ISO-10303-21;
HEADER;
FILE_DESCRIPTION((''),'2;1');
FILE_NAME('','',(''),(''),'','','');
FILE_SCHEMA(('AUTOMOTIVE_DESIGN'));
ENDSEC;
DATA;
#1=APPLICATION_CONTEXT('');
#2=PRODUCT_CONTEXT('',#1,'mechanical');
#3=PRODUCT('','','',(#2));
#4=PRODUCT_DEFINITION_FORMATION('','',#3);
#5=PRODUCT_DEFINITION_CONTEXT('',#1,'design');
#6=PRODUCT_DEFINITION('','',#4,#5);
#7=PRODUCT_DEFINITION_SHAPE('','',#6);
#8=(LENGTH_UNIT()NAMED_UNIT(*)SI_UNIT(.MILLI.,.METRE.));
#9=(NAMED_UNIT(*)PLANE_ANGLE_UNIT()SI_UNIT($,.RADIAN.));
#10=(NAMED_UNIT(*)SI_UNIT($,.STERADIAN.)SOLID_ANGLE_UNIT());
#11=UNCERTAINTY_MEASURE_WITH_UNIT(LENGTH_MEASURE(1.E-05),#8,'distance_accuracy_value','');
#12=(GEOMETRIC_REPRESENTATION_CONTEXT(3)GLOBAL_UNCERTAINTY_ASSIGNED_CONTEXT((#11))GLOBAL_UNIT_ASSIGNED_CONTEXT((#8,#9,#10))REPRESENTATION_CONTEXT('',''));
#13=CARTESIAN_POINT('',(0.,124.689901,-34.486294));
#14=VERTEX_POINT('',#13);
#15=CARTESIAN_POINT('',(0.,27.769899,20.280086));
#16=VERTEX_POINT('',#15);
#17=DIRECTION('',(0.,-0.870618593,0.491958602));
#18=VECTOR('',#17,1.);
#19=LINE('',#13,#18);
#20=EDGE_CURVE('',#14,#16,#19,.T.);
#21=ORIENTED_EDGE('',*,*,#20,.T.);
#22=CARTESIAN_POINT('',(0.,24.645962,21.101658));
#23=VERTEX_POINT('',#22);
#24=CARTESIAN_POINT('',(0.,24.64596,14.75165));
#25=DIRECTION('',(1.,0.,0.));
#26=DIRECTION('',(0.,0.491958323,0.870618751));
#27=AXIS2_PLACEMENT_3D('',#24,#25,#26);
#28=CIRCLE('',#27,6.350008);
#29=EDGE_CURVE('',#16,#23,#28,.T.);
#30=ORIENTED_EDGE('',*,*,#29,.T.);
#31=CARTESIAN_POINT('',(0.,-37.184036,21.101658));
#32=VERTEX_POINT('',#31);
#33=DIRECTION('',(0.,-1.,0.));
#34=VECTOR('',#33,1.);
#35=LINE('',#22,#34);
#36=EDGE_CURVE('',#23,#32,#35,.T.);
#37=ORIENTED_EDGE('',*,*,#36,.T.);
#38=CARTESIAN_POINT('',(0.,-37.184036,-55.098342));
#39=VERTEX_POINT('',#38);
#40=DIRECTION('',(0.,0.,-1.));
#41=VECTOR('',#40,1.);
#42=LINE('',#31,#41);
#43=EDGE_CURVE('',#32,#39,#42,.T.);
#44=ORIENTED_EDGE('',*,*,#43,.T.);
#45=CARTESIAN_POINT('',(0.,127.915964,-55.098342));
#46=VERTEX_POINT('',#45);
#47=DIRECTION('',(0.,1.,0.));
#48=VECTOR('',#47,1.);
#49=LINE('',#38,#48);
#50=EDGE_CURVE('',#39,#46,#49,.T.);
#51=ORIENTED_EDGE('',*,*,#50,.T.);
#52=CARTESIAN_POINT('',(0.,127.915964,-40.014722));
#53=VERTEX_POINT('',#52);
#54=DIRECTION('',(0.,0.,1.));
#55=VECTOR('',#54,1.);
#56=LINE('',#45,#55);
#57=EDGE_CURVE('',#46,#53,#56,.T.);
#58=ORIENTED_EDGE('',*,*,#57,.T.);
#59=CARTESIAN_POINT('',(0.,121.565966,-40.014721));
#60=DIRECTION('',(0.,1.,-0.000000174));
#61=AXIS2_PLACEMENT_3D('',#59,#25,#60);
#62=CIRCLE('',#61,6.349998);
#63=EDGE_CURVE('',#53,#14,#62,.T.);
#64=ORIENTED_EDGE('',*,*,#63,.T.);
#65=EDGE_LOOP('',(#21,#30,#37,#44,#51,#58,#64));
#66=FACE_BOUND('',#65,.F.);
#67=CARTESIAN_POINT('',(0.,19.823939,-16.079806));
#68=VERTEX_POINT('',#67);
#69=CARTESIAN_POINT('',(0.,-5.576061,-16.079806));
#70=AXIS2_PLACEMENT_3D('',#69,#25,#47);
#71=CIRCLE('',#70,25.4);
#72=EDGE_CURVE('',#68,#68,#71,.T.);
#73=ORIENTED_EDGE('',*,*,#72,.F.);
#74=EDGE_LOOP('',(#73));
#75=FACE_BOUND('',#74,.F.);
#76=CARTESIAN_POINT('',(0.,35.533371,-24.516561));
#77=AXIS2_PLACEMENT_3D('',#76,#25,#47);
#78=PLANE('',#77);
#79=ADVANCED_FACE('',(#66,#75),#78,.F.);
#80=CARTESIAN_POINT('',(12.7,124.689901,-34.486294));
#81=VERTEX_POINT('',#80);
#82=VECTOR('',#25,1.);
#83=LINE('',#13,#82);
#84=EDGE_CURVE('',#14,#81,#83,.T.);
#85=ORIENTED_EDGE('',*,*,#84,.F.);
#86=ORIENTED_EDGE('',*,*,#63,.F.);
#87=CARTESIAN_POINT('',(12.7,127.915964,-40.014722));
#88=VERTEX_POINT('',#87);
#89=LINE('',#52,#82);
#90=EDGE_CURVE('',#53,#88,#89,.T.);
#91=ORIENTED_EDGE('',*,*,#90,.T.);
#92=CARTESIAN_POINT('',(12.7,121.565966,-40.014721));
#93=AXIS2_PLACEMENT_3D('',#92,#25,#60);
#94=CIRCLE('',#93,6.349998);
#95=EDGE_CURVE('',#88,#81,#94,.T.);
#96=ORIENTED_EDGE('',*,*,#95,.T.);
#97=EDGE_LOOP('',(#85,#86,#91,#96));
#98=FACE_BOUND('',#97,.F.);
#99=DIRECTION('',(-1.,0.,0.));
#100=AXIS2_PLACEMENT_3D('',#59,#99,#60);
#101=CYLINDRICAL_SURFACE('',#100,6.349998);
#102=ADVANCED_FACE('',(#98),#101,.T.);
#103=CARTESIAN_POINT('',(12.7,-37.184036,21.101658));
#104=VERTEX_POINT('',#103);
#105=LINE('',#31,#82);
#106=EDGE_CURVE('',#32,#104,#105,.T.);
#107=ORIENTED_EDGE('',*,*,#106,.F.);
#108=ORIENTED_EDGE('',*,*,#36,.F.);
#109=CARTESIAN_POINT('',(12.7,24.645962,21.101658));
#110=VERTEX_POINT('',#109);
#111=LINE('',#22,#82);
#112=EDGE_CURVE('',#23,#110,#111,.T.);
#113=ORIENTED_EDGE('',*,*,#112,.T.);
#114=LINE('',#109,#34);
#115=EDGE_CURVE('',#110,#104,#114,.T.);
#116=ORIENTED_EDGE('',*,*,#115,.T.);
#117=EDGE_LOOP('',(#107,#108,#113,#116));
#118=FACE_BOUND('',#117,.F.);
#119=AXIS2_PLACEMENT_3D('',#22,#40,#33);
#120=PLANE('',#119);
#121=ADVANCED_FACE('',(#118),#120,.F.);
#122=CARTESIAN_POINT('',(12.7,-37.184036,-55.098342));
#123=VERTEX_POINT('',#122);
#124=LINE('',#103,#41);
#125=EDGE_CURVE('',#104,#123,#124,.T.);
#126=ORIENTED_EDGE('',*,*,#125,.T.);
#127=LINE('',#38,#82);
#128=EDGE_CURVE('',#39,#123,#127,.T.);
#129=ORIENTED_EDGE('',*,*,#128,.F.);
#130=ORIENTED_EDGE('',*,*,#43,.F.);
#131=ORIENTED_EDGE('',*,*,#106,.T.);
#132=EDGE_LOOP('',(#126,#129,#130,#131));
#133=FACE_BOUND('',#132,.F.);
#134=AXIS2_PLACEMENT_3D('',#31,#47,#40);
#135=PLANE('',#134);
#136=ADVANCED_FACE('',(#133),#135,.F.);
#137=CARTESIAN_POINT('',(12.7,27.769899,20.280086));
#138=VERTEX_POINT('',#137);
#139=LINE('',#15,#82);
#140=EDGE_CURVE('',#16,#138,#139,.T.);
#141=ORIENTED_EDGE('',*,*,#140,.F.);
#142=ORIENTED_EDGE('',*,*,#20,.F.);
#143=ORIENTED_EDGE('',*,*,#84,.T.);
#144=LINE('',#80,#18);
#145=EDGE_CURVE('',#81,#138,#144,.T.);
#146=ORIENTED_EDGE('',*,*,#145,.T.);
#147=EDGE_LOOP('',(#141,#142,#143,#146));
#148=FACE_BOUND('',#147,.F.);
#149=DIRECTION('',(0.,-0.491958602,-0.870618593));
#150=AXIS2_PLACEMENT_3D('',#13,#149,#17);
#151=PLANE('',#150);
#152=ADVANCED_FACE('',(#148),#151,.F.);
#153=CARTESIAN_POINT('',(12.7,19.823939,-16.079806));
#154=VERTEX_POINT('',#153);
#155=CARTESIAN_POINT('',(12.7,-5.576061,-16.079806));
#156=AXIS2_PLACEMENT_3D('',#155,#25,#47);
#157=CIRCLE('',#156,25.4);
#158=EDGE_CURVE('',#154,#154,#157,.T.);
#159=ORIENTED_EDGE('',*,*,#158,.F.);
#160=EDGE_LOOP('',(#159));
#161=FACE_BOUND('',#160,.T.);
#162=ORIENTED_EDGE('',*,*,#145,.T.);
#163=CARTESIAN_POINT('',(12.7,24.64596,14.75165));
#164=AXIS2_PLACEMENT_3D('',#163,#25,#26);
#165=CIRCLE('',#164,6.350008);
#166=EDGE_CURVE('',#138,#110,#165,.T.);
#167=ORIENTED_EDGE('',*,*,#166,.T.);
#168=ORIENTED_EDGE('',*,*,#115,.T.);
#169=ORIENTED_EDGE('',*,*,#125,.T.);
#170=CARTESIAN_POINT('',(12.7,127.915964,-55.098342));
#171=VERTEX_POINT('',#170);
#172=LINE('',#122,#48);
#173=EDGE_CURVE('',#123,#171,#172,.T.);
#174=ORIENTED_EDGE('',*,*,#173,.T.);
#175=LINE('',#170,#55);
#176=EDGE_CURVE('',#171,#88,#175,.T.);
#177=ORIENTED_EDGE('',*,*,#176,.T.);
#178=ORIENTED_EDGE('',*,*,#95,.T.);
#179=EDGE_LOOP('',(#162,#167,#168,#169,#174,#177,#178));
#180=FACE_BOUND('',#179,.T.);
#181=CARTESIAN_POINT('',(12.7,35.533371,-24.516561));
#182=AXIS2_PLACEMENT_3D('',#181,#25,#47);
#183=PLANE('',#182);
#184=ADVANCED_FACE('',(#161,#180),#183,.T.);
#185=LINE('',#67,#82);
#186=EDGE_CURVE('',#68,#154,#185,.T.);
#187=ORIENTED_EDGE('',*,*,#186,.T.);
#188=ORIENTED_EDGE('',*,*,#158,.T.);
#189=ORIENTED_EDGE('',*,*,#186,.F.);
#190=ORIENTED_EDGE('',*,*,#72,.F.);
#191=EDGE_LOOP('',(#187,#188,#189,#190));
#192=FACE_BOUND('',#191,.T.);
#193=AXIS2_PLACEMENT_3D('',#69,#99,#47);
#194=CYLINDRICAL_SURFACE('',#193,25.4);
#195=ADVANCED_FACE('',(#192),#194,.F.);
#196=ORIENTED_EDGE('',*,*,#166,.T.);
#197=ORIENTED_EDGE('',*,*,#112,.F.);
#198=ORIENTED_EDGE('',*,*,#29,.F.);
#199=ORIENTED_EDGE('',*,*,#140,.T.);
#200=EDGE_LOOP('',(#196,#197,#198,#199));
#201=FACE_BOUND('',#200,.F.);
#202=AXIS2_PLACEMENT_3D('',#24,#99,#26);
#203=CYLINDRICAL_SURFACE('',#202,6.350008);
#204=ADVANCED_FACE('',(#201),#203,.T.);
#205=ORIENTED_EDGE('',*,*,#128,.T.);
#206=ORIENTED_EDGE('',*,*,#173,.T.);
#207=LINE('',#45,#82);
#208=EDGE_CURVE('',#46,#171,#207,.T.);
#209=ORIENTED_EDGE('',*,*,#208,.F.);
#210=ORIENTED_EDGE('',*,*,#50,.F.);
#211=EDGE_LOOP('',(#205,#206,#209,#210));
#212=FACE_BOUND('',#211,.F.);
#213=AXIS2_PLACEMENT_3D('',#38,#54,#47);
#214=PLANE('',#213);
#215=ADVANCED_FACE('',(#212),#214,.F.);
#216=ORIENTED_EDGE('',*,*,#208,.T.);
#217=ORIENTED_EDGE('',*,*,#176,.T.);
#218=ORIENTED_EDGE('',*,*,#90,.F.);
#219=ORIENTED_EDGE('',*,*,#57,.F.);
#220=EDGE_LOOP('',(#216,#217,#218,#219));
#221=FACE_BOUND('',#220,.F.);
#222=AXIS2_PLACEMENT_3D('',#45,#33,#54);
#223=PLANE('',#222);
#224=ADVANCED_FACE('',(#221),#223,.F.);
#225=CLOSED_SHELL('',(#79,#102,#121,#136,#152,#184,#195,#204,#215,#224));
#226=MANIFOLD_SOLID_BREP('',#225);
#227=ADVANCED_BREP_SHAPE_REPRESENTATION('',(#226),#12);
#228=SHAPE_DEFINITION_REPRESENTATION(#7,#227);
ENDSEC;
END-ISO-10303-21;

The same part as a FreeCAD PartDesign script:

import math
import FreeCAD as App
import Part
import Sketcher
Q = App.Units.Quantity

doc = App.newDocument("Part")
body = doc.addObject("PartDesign::Body", "Body")

# Sketch on YZ plane
sketch1 = body.newObject("Sketcher::SketchObject", "Sketch")
sketch1.AttachmentSupport = (doc.getObject("YZ_Plane"), [""])
sketch1.MapMode = "FlatFace"
sketch1.addGeometry([
    Part.LineSegment(App.Vector(24.6, 21.1, 0), App.Vector(-37.2, 21.1, 0)),  # 0
    Part.LineSegment(App.Vector(-37.2, 21.1, 0), App.Vector(-37.2, -55.1, 0)),  # 1
    Part.LineSegment(App.Vector(-37.2, -55.1, 0), App.Vector(127.9, -55.1, 0)),  # 2
    Part.LineSegment(App.Vector(127.9, -55.1, 0), App.Vector(127.9, -40, 0)),  # 3
    Part.ArcOfCircle(Part.Circle(App.Vector(121.6, -40, 0), App.Vector(0, 0, 1), 6.3), math.radians(0), math.radians(61)),  # 4
    Part.LineSegment(App.Vector(124.7, -34.5, 0), App.Vector(27.8, 20.3, 0)),  # 5
    Part.ArcOfCircle(Part.Circle(App.Vector(24.6, 14.8, 0), App.Vector(0, 0, 1), 6.4), math.radians(61), math.radians(90)),  # 6
    Part.Circle(App.Vector(-5.6, -16.1, 0), App.Vector(0, 0, 1), 25.4),  # 7
], False)
sketch1.addConstraint([
    Sketcher.Constraint("Coincident", 0, 2, 1, 1),
    Sketcher.Constraint("Coincident", 1, 2, 2, 1),
    Sketcher.Constraint("Coincident", 2, 2, 3, 1),
    Sketcher.Constraint("Tangent", 3, 2, 4, 1),
    Sketcher.Constraint("Tangent", 4, 2, 5, 1),
    Sketcher.Constraint("Tangent", 5, 2, 6, 1),
    Sketcher.Constraint("Tangent", 6, 2, 0, 1),
    Sketcher.Constraint("Horizontal", 0),
    Sketcher.Constraint("Vertical", 1),
    Sketcher.Constraint("Horizontal", 2),
    Sketcher.Constraint("Vertical", 3),
    Sketcher.Constraint("Diameter", 7, Q("2 in")),
    Sketcher.Constraint("DistanceY", 1, 2, 1, 1, Q("3 in")),
    Sketcher.Constraint("Radius", 4, Q("0.2499999 in")),
    Sketcher.Constraint("DistanceX", 2, 1, 2, 2, Q("6.5 in")),
    Sketcher.Constraint("Radius", 6, Q("6.350008 mm")),
    Sketcher.Constraint("DistanceX", 0, 2, 0, 1, Q("61.829998 mm")),
    Sketcher.Constraint("DistanceY", 3, 1, 3, 2, Q("15.08362 mm")),
    Sketcher.Constraint("DistanceX", -1, 1, 4, 2, Q("124.689901 mm")),
    Sketcher.Constraint("DistanceY", 4, 3, -1, 1, Q("40.014721 mm")),
    Sketcher.Constraint("DistanceX", 7, 3, -1, 1, Q("5.576061 mm")),
    Sketcher.Constraint("DistanceY", 4, 2, 7, 3, Q("18.406488 mm")),
])
pad1 = body.newObject("PartDesign::Pad", "Pad")
pad1.Profile = sketch1
pad1.Length = Q("0.5 in")

doc.recompute()
